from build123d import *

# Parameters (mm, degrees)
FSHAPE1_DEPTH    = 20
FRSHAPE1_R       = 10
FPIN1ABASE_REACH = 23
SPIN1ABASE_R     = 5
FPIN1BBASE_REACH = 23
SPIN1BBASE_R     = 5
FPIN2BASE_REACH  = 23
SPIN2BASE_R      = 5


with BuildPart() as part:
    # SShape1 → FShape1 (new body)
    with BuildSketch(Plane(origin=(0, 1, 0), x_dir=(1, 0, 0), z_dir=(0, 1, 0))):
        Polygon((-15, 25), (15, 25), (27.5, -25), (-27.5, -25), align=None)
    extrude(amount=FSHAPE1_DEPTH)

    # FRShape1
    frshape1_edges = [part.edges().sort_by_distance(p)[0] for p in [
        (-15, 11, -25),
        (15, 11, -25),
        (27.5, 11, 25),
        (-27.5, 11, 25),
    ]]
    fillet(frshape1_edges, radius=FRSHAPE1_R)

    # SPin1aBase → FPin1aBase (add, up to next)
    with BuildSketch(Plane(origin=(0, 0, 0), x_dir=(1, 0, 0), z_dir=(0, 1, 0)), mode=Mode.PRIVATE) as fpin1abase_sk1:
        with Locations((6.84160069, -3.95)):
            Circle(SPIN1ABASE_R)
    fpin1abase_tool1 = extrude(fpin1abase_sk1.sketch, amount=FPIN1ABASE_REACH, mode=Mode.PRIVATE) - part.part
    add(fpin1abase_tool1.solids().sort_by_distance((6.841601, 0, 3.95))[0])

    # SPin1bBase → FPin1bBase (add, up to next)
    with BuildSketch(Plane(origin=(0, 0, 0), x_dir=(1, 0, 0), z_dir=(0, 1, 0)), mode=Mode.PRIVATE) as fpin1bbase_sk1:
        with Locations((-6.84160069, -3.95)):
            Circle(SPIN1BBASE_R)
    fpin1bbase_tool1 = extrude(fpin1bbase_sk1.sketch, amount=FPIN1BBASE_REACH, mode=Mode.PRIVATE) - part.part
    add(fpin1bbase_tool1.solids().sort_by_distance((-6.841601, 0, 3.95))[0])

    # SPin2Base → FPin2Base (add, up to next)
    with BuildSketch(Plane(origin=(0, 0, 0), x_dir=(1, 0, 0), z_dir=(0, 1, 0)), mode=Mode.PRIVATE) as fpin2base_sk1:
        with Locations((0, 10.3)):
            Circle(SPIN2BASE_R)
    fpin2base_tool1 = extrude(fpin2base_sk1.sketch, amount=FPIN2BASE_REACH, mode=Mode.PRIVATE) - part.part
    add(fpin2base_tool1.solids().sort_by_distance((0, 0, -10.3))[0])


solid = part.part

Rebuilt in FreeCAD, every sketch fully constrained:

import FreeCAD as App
import Part
import Sketcher

V = App.Vector


def edges_at(feature, points):
    """Names of the edges that pass closest to the given points."""
    edges = feature.Shape.Edges
    near = lambda p: min(range(len(edges)), key=lambda i: edges[i].distToShape(Part.Vertex(*p))[0])
    return sorted({f"Edge{near(p) + 1}" for p in points})


def add_polygon(sketch, points):
    """Adds a closed chain of lines whose ends are joined by coincident constraints."""
    first, n = sketch.GeometryCount, len(points)
    for a, b in zip(points, points[1:] + points[:1]):
        sketch.addGeometry(Part.LineSegment(App.Vector(*a, 0), App.Vector(*b, 0)), False)
    for i in range(n):
        sketch.addConstraint(Sketcher.Constraint("Coincident", first + i, 2, first + (i + 1) % n, 1))

doc = App.newDocument("Part")
params = doc.addObject("Spreadsheet::Sheet", "Params")
for row, (alias, value) in enumerate([
    ("sketch1_width", "30 mm"),
    ("sketch1_width2", "55 mm"),
    ("pad1_length", "20 mm"),
    ("fillet_radius", "10 mm"),
    ("sketch2_diameter", "10 mm"),
    ("sketch3_diameter", "10 mm"),
    ("sketch4_diameter", "10 mm"),
], start=1):
    params.set(f"A{row}", alias)
    params.set(f"B{row}", "=" + value)
    params.setAlias(f"B{row}", alias)

body = doc.addObject("PartDesign::Body", "Body")

# Sketch on XZ plane
sketch1 = body.newObject("Sketcher::SketchObject", "Sketch")
sketch1.AttachmentSupport = (doc.getObject("XZ_Plane"), [""])
sketch1.MapMode = "FlatFace"
sketch1.AttachmentOffset = App.Placement(V(0, 0, -1), App.Rotation())
add_polygon(sketch1, [(15, -25), (-15, -25), (-28, 25), (28, 25)])  # lines 0-3
sketch1.addConstraint([
    Sketcher.Constraint("Horizontal", 0),
    Sketcher.Constraint("Horizontal", 2),
    Sketcher.Constraint("Equal", 1, 3),
    Sketcher.Constraint("DistanceX", 0, 2, 0, 1, 30.0),
    Sketcher.Constraint("DistanceX", 2, 1, 2, 2, 55.0),
    Sketcher.Constraint("DistanceX", 0, 2, -1, 1, 15.0),
    Sketcher.Constraint("DistanceY", 0, 2, -1, 1, 25.0),
    Sketcher.Constraint("DistanceY", -1, 1, 1, 2, 25.0),
])
sketch1.setExpression("Constraints[7]", "Params.sketch1_width")
sketch1.setExpression("Constraints[8]", "Params.sketch1_width2")
pad1 = body.newObject("PartDesign::Pad", "Pad")
pad1.Profile = sketch1
pad1.setExpression("Length", "Params.pad1_length")
pad1.Reversed = True
doc.recompute()

fillet = body.newObject("PartDesign::Fillet", "Fillet")
fillet.Base = (pad1, edges_at(pad1, [
    (-15, 11, -25),
    (15, 11, -25),
    (27.5, 11, 25),
    (-27.5, 11, 25),
]))
fillet.setExpression("Radius", "Params.fillet_radius")

# Sketch on XZ plane
sketch2 = body.newObject("Sketcher::SketchObject", "Sketch001")
sketch2.AttachmentSupport = (doc.getObject("XZ_Plane"), [""])
sketch2.MapMode = "FlatFace"
sketch2.addGeometry(Part.Circle(V(7, 4, 0), V(0, 0, 1), 5), False)
sketch2.addConstraint([
    Sketcher.Constraint("Diameter", 0, 10.0),
    Sketcher.Constraint("DistanceY", -1, 1, 0, 3, 3.95),
    Sketcher.Constraint("DistanceX", -1, 1, 0, 3, 6.841601),
])
sketch2.setExpression("Constraints[0]", "Params.sketch2_diameter")
pad2 = body.newObject("PartDesign::Pad", "Pad001")
pad2.Profile = sketch2
pad2.Type = "UpToFirst"
pad2.Reversed = True

# Sketch on XZ plane
sketch3 = body.newObject("Sketcher::SketchObject", "Sketch002")
sketch3.AttachmentSupport = (doc.getObject("XZ_Plane"), [""])
sketch3.MapMode = "FlatFace"
sketch3.addGeometry(Part.Circle(V(-7, 4, 0), V(0, 0, 1), 5), False)
sketch3.addConstraint([
    Sketcher.Constraint("Diameter", 0, 10.0),
    Sketcher.Constraint("DistanceY", -1, 1, 0, 3, 3.95),
    Sketcher.Constraint("DistanceX", 0, 3, -1, 1, 6.841601),
])
sketch3.setExpression("Constraints[0]", "Params.sketch3_diameter")
pad3 = body.newObject("PartDesign::Pad", "Pad002")
pad3.Profile = sketch3
pad3.Type = "UpToFirst"
pad3.Reversed = True

# Sketch on XZ plane
sketch4 = body.newObject("Sketcher::SketchObject", "Sketch003")
sketch4.AttachmentSupport = (doc.getObject("XZ_Plane"), [""])
sketch4.MapMode = "FlatFace"
sketch4.addGeometry(Part.Circle(V(0, -10, 0), V(0, 0, 1), 5), False)
sketch4.addConstraint([
    Sketcher.Constraint("PointOnObject", 0, 3, -2),
    Sketcher.Constraint("Diameter", 0, 10.0),
    Sketcher.Constraint("DistanceY", 0, 3, -1, 1, 10.3),
])
sketch4.setExpression("Constraints[1]", "Params.sketch4_diameter")
pad4 = body.newObject("PartDesign::Pad", "Pad003")
pad4.Profile = sketch4
pad4.Type = "UpToFirst"
pad4.Reversed = True

doc.recompute()
